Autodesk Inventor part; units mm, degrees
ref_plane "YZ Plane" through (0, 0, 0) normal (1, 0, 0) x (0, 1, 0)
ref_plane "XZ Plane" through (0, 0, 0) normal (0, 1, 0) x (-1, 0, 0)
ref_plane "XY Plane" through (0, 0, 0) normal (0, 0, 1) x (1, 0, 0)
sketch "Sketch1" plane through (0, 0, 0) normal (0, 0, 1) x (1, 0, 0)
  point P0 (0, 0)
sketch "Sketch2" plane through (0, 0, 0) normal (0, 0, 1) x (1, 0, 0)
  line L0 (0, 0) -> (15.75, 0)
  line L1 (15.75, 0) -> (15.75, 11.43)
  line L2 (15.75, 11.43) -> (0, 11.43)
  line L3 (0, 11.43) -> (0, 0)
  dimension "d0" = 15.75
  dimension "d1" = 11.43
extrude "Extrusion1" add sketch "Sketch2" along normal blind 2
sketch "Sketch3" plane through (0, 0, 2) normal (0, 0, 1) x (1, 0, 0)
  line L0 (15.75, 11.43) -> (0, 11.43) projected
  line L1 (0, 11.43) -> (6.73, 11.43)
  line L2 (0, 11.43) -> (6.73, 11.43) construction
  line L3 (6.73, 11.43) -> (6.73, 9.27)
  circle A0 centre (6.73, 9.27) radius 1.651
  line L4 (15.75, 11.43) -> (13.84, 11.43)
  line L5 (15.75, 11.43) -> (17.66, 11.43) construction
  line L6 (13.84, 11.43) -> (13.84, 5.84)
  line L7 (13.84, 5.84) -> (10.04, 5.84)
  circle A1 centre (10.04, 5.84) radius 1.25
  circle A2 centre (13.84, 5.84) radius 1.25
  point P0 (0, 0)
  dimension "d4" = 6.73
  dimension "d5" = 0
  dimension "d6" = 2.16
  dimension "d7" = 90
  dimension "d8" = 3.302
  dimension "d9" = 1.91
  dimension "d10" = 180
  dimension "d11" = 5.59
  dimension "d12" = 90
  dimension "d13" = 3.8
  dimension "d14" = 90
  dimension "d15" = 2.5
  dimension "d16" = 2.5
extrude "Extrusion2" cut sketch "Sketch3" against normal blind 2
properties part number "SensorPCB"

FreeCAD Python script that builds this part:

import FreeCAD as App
import Part
import Sketcher
from FreeCAD import Vector
Q = App.Units.Quantity

doc = App.newDocument("Part")
body = doc.addObject("PartDesign::Body", "Body")

# Sketch on XY plane
sketch1 = body.newObject("Sketcher::SketchObject", "Sketch")
sketch1.AttachmentSupport = (doc.getObject("XY_Plane"), [""])
sketch1.MapMode = "FlatFace"
sketch1.addGeometry([
    Part.LineSegment(Vector(0, 11.43, 0), Vector(0, 0, 0)),
    Part.LineSegment(Vector(0, 0, 0), Vector(15.75, 0, 0)),
    Part.LineSegment(Vector(15.75, 0, 0), Vector(15.75, 11.43, 0)),
    Part.LineSegment(Vector(15.75, 11.43, 0), Vector(0, 11.43, 0)),
], False)
sketch1.addConstraint([
    Sketcher.Constraint("Coincident", 0, 2, 1, 1),
    Sketcher.Constraint("Coincident", 1, 2, 2, 1),
    Sketcher.Constraint("Coincident", 2, 2, 3, 1),
    Sketcher.Constraint("Coincident", 3, 2, 0, 1),
    Sketcher.Constraint("Vertical", 0),
    Sketcher.Constraint("Horizontal", 1),
    Sketcher.Constraint("Vertical", 2),
    Sketcher.Constraint("Horizontal", 3),
    Sketcher.Constraint("Coincident", 0, 2, -1, 1),
    Sketcher.Constraint("DistanceX", 1, 1, 1, 2, Q("15.75 mm")),
    Sketcher.Constraint("DistanceY", 0, 2, 0, 1, Q("11.43 mm")),
])
pad1 = body.newObject("PartDesign::Pad", "Pad")
pad1.Profile = sketch1
pad1.Length = 2

# Sketch on XY plane
sketch2 = body.newObject("Sketcher::SketchObject", "Sketch001")
sketch2.AttachmentSupport = (doc.getObject("XY_Plane"), [""])
sketch2.MapMode = "FlatFace"
sketch2.AttachmentOffset = App.Placement(Vector(0, 0, 2), App.Rotation())
sketch2.addGeometry([
    Part.Circle(Vector(6.73, 9.27, 0), Vector(0, 0, 1), 1.651),
    Part.Circle(Vector(10.04, 5.84, 0), Vector(0, 0, 1), 1.25),
    Part.Circle(Vector(13.84, 5.84, 0), Vector(0, 0, 1), 1.25),
], False)
sketch2.addConstraint([
    Sketcher.Constraint("Equal", 1, 2),
    Sketcher.Constraint("Horizontal", 1, 3, 2, 3),
    Sketcher.Constraint("Diameter", 1, Q("2.5 mm")),
    Sketcher.Constraint("Diameter", 0, Q("3.302 mm")),
    Sketcher.Constraint("DistanceX", 1, 3, 2, 3, Q("3.8 mm")),
    Sketcher.Constraint("DistanceX", -1, 1, 0, 3, Q("6.73 mm")),
    Sketcher.Constraint("DistanceY", -1, 1, 0, 3, Q("9.27 mm")),
    Sketcher.Constraint("DistanceX", -1, 1, 1, 3, Q("10.04 mm")),
    Sketcher.Constraint("DistanceY", -1, 1, 1, 3, Q("5.84 mm")),
])
pocket1 = body.newObject("PartDesign::Pocket", "Pocket")
pocket1.Profile = sketch2
pocket1.Length = 2

doc.recompute()
